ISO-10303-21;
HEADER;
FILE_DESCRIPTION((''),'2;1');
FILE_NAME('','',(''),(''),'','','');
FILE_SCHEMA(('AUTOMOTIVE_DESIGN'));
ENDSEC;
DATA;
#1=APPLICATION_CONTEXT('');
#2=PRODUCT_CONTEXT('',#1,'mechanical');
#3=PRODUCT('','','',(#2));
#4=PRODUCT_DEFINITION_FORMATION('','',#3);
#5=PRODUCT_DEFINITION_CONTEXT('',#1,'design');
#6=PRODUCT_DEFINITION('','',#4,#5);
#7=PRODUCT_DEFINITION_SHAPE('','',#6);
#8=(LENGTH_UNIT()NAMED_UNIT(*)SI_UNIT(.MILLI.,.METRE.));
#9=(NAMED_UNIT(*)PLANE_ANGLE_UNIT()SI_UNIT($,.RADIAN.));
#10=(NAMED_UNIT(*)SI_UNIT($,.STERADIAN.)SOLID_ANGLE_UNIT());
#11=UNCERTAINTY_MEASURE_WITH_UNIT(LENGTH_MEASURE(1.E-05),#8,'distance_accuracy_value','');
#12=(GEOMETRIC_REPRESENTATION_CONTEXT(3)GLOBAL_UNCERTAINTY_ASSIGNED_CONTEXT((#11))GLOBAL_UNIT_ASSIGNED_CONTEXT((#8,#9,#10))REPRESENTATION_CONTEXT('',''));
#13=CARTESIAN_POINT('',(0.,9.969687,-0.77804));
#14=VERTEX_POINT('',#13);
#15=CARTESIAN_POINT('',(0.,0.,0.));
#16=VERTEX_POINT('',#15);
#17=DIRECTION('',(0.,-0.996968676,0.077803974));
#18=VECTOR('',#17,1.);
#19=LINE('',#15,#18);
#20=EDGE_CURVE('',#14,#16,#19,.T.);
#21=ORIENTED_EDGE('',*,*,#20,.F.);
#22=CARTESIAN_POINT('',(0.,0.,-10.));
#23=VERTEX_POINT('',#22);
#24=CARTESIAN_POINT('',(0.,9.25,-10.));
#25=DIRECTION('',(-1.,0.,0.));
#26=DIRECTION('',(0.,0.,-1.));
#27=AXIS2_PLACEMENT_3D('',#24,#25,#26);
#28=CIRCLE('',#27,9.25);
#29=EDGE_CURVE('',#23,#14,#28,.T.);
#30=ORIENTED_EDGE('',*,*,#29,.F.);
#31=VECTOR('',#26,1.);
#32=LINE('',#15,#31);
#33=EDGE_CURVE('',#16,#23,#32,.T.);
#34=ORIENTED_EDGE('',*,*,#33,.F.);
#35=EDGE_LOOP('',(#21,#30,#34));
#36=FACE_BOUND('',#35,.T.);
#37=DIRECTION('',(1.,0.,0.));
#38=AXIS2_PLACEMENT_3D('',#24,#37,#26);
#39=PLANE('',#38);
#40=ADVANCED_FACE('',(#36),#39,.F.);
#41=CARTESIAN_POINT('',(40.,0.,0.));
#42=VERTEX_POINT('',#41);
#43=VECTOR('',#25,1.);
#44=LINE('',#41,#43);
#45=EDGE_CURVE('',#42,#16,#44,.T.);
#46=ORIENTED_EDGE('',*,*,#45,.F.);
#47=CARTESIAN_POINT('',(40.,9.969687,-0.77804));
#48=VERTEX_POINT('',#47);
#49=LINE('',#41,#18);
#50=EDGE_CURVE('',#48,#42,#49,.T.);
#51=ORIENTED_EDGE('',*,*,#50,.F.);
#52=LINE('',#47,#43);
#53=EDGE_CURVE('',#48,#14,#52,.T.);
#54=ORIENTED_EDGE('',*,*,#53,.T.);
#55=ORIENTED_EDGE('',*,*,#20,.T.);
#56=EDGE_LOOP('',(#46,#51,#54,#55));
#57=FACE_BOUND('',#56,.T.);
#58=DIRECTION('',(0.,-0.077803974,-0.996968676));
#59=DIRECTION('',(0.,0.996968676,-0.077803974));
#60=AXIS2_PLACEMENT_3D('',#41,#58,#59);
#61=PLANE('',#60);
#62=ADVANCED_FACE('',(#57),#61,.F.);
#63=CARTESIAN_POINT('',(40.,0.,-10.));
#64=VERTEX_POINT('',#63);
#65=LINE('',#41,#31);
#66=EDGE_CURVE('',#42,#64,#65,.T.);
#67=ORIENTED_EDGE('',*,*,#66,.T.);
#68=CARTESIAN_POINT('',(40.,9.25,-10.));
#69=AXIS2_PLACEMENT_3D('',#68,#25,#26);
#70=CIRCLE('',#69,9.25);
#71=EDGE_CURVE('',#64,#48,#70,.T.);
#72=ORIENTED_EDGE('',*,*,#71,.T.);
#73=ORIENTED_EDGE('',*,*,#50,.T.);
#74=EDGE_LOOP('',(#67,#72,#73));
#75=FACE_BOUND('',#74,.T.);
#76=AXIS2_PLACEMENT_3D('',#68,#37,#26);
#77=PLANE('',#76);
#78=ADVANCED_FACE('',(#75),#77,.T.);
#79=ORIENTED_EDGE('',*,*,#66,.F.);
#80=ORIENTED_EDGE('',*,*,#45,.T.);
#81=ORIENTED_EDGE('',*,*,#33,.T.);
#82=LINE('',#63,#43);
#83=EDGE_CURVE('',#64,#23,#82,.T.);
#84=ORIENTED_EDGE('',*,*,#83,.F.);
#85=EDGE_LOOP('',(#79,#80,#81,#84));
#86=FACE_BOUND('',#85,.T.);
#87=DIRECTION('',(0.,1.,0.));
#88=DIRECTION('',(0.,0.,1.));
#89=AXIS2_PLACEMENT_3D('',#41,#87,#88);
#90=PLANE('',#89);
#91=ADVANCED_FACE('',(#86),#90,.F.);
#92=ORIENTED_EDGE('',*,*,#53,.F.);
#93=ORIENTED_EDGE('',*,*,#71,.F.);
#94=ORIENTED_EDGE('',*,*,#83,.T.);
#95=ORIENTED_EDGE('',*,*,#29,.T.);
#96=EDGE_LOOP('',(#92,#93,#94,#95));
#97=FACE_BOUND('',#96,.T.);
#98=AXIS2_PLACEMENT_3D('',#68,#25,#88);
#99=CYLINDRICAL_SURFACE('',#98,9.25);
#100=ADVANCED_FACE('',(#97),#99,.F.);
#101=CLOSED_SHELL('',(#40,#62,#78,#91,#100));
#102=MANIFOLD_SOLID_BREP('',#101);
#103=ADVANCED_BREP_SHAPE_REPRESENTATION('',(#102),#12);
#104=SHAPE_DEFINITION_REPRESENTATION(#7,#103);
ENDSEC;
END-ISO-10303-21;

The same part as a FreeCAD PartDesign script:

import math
import FreeCAD as App
import Part
import Sketcher
from FreeCAD import Vector
Q = App.Units.Quantity

doc = App.newDocument("Part")
body = doc.addObject("PartDesign::Body", "Body")

# Sketch on YZ plane
sketch1 = doc.addObject("Sketcher::SketchObject", "Sketch")
body.addObject(sketch1)
sketch1.AttachmentSupport = (doc.YZ_Plane, [""])
sketch1.MapMode = "FlatFace"
sketch1.addGeometry(Part.LineSegment(Vector(0, 0, 0), Vector(0, -10, 0)), False)
sketch1.addGeometry(Part.ArcOfCircle(Part.Circle(Vector(9, -10, 0), Vector(0, 0, 1), 9), math.radians(86), math.radians(180)), False)
sketch1.addGeometry(Part.LineSegment(Vector(10, -1, 0), Vector(0, 0, 0)), False)
sketch1.addConstraint(Sketcher.Constraint("Tangent", 0, 2, 1, 2))
sketch1.addConstraint(Sketcher.Constraint("Tangent", 1, 1, 2, 1))
sketch1.addConstraint(Sketcher.Constraint("Coincident", 2, 2, 0, 1))
sketch1.addConstraint(Sketcher.Constraint("Vertical", 0))
sketch1.addConstraint(Sketcher.Constraint("Coincident", 2, 2, -1, 1))
sketch1.addConstraint(Sketcher.Constraint("DistanceY", 0, 2, 0, 1, Q("10 mm")))
sketch1.addConstraint(Sketcher.Constraint("Radius", 1, Q("9.25 mm")))
pad1 = doc.addObject("PartDesign::Pad", "Pad")
body.addObject(pad1)
pad1.Profile = sketch1
pad1.Length = 40

doc.recompute()
